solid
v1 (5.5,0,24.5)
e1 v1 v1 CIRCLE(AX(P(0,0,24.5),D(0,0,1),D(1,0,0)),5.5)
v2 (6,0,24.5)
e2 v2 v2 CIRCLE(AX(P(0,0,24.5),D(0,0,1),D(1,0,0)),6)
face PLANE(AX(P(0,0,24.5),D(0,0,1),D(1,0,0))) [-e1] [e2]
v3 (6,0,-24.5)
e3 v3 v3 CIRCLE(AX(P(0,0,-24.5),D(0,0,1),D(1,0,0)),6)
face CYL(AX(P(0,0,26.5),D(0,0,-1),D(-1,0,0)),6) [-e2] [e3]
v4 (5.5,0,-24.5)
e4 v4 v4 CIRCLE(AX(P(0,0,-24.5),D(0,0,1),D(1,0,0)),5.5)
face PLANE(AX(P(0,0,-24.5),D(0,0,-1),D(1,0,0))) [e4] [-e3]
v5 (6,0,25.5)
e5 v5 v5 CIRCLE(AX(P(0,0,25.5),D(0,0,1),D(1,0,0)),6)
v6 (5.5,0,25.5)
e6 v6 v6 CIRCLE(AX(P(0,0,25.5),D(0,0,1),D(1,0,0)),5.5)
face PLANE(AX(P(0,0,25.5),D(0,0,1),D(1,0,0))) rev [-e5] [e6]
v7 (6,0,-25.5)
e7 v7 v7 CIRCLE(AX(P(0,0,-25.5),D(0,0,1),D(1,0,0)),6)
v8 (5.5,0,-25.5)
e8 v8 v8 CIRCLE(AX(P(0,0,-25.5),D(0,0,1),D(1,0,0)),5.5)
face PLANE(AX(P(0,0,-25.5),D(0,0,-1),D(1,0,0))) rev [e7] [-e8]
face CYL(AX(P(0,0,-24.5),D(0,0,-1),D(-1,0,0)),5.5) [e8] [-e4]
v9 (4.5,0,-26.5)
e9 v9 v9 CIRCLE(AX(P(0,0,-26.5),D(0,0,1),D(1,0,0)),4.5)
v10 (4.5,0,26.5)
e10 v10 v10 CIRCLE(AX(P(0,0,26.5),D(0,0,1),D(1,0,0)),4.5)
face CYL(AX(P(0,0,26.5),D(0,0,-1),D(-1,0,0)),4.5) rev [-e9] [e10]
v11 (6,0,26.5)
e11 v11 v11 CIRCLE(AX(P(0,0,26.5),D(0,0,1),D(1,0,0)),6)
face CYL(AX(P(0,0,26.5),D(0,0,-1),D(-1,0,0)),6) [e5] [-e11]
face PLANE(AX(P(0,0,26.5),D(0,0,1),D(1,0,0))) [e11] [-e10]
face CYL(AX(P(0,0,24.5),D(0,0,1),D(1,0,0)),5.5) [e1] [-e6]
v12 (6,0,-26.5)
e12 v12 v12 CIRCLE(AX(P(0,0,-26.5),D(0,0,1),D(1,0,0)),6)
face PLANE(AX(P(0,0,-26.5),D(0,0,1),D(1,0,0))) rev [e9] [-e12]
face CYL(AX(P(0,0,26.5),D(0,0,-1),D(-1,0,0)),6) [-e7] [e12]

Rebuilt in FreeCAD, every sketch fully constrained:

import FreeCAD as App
import Part
import Sketcher
from FreeCAD import Vector

doc = App.newDocument("Part")
params = doc.addObject("Spreadsheet::Sheet", "Params")
for row, (alias, value) in enumerate([
    ("sketch1_diameter", "12 mm"),
    ("sketch1_diameter2", "9 mm"),
    ("pad1_length", "53 mm"),
    ("sketch2_diameter", "12 mm"),
    ("sketch2_diameter2", "11 mm"),
    ("pocket1_length", "1 mm"),
], start=1):
    params.set(f"A{row}", alias)
    params.set(f"B{row}", "=" + value)
    params.setAlias(f"B{row}", alias)

body = doc.addObject("PartDesign::Body", "Body")

# Sketch on XY plane
sketch1 = body.newObject("Sketcher::SketchObject", "Sketch")
sketch1.AttachmentSupport = (doc.getObject("XY_Plane"), [""])
sketch1.MapMode = "FlatFace"
sketch1.addGeometry(Part.Circle(Vector(0, 0, 0), Vector(0, 0, 1), 6), False)
sketch1.addGeometry(Part.Circle(Vector(0, 0, 0), Vector(0, 0, 1), 4.5), False)
sketch1.addConstraint(Sketcher.Constraint("Coincident", 0, 3, -1, 1))
sketch1.addConstraint(Sketcher.Constraint("Coincident", 1, 3, -1, 1))
sketch1.addConstraint(Sketcher.Constraint("Diameter", 0, 12.0))
sketch1.addConstraint(Sketcher.Constraint("Diameter", 1, 9.0))
sketch1.setExpression("Constraints[2]", "Params.sketch1_diameter")
sketch1.setExpression("Constraints[3]", "Params.sketch1_diameter2")
pad1 = body.newObject("PartDesign::Pad", "Pad")
pad1.Profile = sketch1
pad1.setExpression("Length", "Params.pad1_length")
pad1.Midplane = True

# Sketch on XY plane
sketch2 = body.newObject("Sketcher::SketchObject", "Sketch001")
sketch2.AttachmentSupport = (doc.getObject("XY_Plane"), [""])
sketch2.MapMode = "FlatFace"
sketch2.AttachmentOffset = App.Placement(Vector(0, 0, 25.5), App.Rotation())
sketch2.addGeometry(Part.Circle(Vector(0, 0, 0), Vector(0, 0, 1), 6), False)
sketch2.addGeometry(Part.Circle(Vector(0, 0, 0), Vector(0, 0, 1), 6), False)
sketch2.addConstraint(Sketcher.Constraint("Coincident", 0, 3, -1, 1))
sketch2.addConstraint(Sketcher.Constraint("Coincident", 1, 3, -1, 1))
sketch2.addConstraint(Sketcher.Constraint("Diameter", 0, 12.0))
sketch2.addConstraint(Sketcher.Constraint("Diameter", 1, 11.0))
sketch2.setExpression("Constraints[2]", "Params.sketch2_diameter")
sketch2.setExpression("Constraints[3]", "Params.sketch2_diameter2")
pocket1 = body.newObject("PartDesign::Pocket", "Pocket")
pocket1.Profile = sketch2
pocket1.setExpression("Length", "Params.pocket1_length")
doc.recompute()

mirrored = body.newObject("PartDesign::Mirrored", "Mirrored")
mirrored.Originals = [pocket1]
mirrored.MirrorPlane = (doc.getObject("XY_Plane"), [""])
body.Tip = mirrored

doc.recompute()
